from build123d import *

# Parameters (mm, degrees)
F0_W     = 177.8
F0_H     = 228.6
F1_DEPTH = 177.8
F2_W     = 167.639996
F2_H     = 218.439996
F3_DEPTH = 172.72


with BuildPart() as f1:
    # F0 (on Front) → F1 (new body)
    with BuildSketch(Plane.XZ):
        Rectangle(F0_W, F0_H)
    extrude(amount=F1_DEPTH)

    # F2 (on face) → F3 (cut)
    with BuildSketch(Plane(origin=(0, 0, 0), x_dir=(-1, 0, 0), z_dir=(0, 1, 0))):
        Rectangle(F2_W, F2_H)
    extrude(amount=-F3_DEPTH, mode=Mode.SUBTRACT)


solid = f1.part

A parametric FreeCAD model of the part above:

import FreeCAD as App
import Part
import Sketcher
from FreeCAD import Vector
Q = App.Units.Quantity


def add_polygon(sketch, points):
    """Adds a closed chain of lines whose ends are joined by coincident constraints."""
    first, n = sketch.GeometryCount, len(points)
    for a, b in zip(points, points[1:] + points[:1]):
        sketch.addGeometry(Part.LineSegment(App.Vector(*a, 0), App.Vector(*b, 0)), False)
    for i in range(n):
        sketch.addConstraint(Sketcher.Constraint("Coincident", first + i, 2, first + (i + 1) % n, 1))

doc = App.newDocument("Part")
body = doc.addObject("PartDesign::Body", "Body")

# Sketch on XZ plane
sketch1 = doc.addObject("Sketcher::SketchObject", "Sketch")
body.addObject(sketch1)
sketch1.AttachmentSupport = (doc.XZ_Plane, [""])
sketch1.MapMode = "FlatFace"
add_polygon(sketch1, [(-89, 114), (-89, -114), (89, -114), (89, 114)])  # lines 0-3
sketch1.addConstraint(Sketcher.Constraint("Vertical", 0))
sketch1.addConstraint(Sketcher.Constraint("Horizontal", 1))
sketch1.addConstraint(Sketcher.Constraint("Vertical", 2))
sketch1.addConstraint(Sketcher.Constraint("Horizontal", 3))
sketch1.addConstraint(Sketcher.Constraint("Symmetric", 0, 2, 2, 2, -1, 1))
sketch1.addConstraint(Sketcher.Constraint("DistanceX", 1, 1, 1, 2, Q("7 in")))
sketch1.addConstraint(Sketcher.Constraint("DistanceY", 0, 2, 0, 1, Q("9 in")))
pad1 = doc.addObject("PartDesign::Pad", "Pad")
body.addObject(pad1)
pad1.Profile = sketch1
pad1.Length = Q("7 in")

# Sketch on XZ plane
sketch2 = doc.addObject("Sketcher::SketchObject", "Sketch001")
body.addObject(sketch2)
sketch2.AttachmentSupport = (doc.XZ_Plane, [""])
sketch2.MapMode = "FlatFace"
add_polygon(sketch2, [(84, 109), (84, -109), (-84, -109), (-84, 109)])  # lines 0-3
sketch2.addConstraint(Sketcher.Constraint("Vertical", 0))
sketch2.addConstraint(Sketcher.Constraint("Horizontal", 1))
sketch2.addConstraint(Sketcher.Constraint("Vertical", 2))
sketch2.addConstraint(Sketcher.Constraint("Horizontal", 3))
sketch2.addConstraint(Sketcher.Constraint("Symmetric", 0, 2, 2, 2, -1, 1))
sketch2.addConstraint(Sketcher.Constraint("DistanceX", 1, 2, 1, 1, Q("6.5999998 in")))
sketch2.addConstraint(Sketcher.Constraint("DistanceY", 0, 2, 0, 1, Q("8.5999998 in")))
pocket1 = doc.addObject("PartDesign::Pocket", "Pocket")
body.addObject(pocket1)
pocket1.Profile = sketch2
pocket1.Length = Q("6.8 in")
pocket1.Reversed = True

doc.recompute()
